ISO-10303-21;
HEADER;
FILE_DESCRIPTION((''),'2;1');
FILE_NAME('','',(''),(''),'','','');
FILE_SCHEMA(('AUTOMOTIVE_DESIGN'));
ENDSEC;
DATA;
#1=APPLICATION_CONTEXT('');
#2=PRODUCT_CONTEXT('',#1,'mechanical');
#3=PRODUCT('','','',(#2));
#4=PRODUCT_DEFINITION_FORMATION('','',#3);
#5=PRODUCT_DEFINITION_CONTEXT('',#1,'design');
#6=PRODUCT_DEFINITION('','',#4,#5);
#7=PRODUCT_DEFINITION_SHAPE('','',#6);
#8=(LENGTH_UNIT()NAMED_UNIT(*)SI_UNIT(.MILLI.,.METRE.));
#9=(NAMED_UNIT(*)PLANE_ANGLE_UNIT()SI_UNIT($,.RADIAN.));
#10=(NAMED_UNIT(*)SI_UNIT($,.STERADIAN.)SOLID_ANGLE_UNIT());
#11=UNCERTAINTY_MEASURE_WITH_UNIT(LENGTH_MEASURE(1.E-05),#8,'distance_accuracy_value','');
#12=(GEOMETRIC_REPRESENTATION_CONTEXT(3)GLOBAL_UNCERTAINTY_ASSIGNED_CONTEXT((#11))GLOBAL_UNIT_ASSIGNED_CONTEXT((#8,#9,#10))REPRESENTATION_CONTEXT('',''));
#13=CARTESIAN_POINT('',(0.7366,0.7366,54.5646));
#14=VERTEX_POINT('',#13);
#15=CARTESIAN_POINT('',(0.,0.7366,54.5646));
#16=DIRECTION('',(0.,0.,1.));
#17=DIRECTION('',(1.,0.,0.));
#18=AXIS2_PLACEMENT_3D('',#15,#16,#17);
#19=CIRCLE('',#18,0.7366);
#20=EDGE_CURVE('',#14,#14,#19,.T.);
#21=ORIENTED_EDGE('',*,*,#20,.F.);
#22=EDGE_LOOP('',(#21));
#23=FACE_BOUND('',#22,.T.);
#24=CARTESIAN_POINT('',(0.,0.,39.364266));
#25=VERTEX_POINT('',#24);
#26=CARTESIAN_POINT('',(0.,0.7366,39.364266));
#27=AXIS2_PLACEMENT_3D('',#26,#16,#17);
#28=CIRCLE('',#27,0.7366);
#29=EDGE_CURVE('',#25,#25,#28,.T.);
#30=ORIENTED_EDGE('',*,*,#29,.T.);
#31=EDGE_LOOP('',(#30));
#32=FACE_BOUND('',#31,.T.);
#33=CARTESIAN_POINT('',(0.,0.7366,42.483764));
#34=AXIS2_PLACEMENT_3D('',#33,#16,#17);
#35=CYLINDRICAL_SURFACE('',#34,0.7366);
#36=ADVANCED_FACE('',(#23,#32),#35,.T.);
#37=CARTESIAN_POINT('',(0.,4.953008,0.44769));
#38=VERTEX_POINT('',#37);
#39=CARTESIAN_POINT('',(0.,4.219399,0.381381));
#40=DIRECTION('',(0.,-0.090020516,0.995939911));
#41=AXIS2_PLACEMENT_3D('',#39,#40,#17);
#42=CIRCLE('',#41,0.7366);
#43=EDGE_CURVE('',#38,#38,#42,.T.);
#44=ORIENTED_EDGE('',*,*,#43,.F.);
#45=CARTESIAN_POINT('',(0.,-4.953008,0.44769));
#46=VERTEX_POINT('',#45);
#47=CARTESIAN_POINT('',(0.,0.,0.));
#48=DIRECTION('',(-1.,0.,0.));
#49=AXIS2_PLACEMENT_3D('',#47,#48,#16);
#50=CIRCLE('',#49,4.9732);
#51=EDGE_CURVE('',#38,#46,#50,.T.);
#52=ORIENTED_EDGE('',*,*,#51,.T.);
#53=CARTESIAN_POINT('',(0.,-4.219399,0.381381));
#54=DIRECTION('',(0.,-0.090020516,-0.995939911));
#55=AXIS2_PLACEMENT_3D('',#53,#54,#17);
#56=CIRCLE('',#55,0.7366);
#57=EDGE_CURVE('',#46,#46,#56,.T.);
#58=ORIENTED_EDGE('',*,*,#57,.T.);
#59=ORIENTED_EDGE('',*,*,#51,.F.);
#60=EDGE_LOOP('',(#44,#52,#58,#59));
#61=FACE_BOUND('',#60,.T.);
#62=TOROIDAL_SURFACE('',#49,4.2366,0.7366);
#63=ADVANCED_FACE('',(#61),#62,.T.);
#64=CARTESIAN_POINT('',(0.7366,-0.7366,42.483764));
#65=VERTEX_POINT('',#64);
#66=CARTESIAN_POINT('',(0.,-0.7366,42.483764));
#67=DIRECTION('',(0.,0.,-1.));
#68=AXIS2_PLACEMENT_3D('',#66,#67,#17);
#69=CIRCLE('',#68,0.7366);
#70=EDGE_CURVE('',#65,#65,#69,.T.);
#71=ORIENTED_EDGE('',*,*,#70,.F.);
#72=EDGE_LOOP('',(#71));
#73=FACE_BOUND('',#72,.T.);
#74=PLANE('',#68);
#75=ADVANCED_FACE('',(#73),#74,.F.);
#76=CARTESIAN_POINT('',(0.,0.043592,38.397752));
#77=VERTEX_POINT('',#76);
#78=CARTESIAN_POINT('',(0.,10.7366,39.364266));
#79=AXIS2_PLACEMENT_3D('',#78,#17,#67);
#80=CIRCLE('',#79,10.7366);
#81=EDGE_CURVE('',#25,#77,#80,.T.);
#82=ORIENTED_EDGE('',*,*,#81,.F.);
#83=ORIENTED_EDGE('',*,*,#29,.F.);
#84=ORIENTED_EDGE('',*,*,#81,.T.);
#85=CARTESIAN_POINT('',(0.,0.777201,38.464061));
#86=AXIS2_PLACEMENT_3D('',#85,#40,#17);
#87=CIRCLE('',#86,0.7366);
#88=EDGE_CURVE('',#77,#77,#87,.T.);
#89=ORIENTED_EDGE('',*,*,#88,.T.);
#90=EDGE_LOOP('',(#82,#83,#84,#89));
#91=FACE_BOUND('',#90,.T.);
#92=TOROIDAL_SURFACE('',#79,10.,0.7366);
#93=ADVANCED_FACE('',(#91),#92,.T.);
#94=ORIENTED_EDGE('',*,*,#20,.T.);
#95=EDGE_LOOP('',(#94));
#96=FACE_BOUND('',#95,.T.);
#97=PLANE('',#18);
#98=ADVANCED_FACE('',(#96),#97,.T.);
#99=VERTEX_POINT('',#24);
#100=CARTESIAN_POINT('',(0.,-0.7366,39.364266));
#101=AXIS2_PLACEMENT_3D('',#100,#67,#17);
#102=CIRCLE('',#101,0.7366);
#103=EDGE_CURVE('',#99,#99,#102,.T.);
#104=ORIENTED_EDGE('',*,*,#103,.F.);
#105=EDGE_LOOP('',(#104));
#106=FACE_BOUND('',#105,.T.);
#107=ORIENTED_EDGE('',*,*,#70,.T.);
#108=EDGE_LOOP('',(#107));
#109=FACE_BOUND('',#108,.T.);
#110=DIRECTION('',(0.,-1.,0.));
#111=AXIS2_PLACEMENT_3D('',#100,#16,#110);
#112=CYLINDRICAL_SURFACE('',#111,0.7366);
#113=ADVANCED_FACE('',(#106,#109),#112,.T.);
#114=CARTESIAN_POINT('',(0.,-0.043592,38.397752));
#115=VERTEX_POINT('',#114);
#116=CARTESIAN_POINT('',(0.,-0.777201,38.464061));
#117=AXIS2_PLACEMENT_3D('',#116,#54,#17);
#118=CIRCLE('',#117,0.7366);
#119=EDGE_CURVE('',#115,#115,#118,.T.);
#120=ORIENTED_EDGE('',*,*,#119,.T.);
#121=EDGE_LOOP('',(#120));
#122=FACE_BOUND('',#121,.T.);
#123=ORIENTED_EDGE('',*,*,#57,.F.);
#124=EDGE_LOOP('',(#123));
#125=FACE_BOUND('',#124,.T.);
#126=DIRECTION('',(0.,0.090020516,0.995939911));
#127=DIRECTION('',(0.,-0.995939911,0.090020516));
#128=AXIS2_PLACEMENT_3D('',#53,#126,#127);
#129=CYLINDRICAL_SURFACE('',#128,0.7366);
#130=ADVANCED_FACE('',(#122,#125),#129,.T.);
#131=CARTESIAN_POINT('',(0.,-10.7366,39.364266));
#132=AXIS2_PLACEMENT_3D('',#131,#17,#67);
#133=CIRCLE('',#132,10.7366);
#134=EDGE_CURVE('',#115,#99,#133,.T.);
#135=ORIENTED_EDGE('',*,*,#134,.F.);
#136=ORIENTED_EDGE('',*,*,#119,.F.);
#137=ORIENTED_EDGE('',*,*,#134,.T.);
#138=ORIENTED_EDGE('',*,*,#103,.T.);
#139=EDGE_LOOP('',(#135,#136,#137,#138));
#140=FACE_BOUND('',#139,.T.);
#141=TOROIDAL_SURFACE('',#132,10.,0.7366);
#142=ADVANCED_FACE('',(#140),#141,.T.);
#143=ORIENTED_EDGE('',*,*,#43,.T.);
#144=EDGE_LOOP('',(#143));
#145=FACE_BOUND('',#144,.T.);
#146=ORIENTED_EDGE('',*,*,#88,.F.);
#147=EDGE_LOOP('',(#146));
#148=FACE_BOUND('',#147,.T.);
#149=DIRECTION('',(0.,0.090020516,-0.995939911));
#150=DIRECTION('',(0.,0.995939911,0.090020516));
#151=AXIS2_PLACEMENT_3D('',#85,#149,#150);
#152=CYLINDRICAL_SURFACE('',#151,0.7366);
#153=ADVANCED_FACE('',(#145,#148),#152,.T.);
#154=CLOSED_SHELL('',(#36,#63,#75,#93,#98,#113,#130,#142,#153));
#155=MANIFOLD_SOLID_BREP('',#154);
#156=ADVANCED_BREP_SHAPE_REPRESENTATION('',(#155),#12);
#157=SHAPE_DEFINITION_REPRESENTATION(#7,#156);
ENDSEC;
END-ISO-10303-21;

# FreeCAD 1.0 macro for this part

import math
import FreeCAD as App
import Part
import Sketcher

V = App.Vector

doc = App.newDocument("Part")
body = doc.addObject("PartDesign::Body", "Body")

# Sketch on XY plane
sketch1 = doc.addObject("Sketcher::SketchObject", "Sketch")
body.addObject(sketch1)
sketch1.AttachmentSupport = (doc.XY_Plane, [""])
sketch1.MapMode = "FlatFace"
sketch1.AttachmentOffset = App.Placement(V(0, 0, 54.5646), App.Rotation())
sketch1.addGeometry(Part.Circle(V(0, 0.7366, 0), V(0, 0, 1), 0.7366), False)
sketch1.addConstraint([
    Sketcher.Constraint("PointOnObject", 0, 3, -2),
    Sketcher.Constraint("Diameter", 0, 1.4732),
    Sketcher.Constraint("DistanceY", -1, 1, 0, 3, 0.7366),
])

# Sketch on YZ plane
sketch2 = doc.addObject("Sketcher::SketchObject", "Sketch001")
body.addObject(sketch2)
sketch2.AttachmentSupport = (doc.YZ_Plane, [""])
sketch2.MapMode = "FlatFace"
sketch2.addGeometry([
    Part.LineSegment(V(-0.7366, 42.483764, 0), V(-0.7366, 39.364266, 0)),  # 0
    Part.ArcOfCircle(Part.Circle(V(-10.7366, 39.364266, 0), V(0, 0, 1), 10), math.radians(-5.164787), math.radians(0)),  # 1
    Part.LineSegment(V(-0.777201, 38.464061, 0), V(-4.219399, 0.381381, 0)),  # 2
    Part.ArcOfCircle(Part.Circle(V(0, 0, 0), V(0, 0, 1), 4.2366), math.radians(174.835213), math.radians(365.164787)),  # 3
    Part.LineSegment(V(4.219399, 0.381381, 0), V(0.777201, 38.464061, 0)),  # 4
    Part.ArcOfCircle(Part.Circle(V(10.7366, 39.364266, 0), V(0, 0, 1), 10), math.radians(-180), math.radians(-174.835213)),  # 5
    Part.LineSegment(V(0.7366, 39.364266, 0), V(0.7366, 54.5646, 0)),  # 6
], False)
sketch2.addConstraint([
    Sketcher.Constraint("Tangent", 0, 2, 1, 2),
    Sketcher.Constraint("Tangent", 1, 1, 2, 1),
    Sketcher.Constraint("Tangent", 2, 2, 3, 1),
    Sketcher.Constraint("Tangent", 3, 2, 4, 1),
    Sketcher.Constraint("Tangent", 4, 2, 5, 2),
    Sketcher.Constraint("Tangent", 5, 1, 6, 1),
    Sketcher.Constraint("Vertical", 0),
    Sketcher.Constraint("Vertical", 6),
    Sketcher.Constraint("Coincident", 3, 3, -1, 1),
    Sketcher.Constraint("Equal", 1, 5),
    Sketcher.Constraint("Symmetric", 1, 3, 5, 3, -2),
    Sketcher.Constraint("Radius", 1, 10.0),
    Sketcher.Constraint("Radius", 3, 4.2366),
    Sketcher.Constraint("DistanceX", 2, 2, 5, 3, 14.955999),
    Sketcher.Constraint("DistanceY", -1, 1, 6, 2, 54.5646),
    Sketcher.Constraint("Distance", 2, 38.23793),
    Sketcher.Constraint("DistanceY", 0, 2, 0, 1, 3.119498),
])
doc.recompute()

additivepipe = doc.addObject("PartDesign::AdditivePipe", "AdditivePipe")
body.addObject(additivepipe)
additivepipe.Profile = sketch1
additivepipe.Spine = (sketch2, ["Edge1", "Edge2", "Edge3", "Edge4", "Edge5", "Edge6", "Edge7"])

doc.recompute()
